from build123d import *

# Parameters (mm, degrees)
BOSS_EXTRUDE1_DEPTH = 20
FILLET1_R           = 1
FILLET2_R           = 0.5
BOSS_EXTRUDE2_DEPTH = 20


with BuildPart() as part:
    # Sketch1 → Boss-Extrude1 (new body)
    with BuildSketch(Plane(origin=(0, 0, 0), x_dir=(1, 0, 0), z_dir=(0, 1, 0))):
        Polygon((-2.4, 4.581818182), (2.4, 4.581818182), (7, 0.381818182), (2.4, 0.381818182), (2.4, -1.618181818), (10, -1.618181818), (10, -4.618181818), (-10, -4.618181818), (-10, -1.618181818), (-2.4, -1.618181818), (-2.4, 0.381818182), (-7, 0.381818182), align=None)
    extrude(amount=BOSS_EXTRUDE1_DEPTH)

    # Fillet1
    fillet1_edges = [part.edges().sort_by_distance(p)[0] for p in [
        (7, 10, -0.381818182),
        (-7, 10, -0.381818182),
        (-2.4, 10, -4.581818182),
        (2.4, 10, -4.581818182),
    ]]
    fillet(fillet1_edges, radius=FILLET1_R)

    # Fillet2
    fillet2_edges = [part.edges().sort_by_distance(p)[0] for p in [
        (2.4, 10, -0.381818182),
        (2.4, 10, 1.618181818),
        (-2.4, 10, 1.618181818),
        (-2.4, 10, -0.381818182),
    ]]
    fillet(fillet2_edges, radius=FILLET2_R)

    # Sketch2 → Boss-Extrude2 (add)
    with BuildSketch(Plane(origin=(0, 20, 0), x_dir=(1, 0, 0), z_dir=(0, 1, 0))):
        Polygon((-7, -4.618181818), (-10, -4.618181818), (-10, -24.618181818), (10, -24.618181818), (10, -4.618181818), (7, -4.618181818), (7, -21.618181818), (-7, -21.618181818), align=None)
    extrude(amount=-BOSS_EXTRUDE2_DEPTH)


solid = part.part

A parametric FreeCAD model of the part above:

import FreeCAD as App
import Part
import Sketcher
from FreeCAD import Vector
Q = App.Units.Quantity


def edges_at(feature, points):
    """Names of the edges that pass closest to the given points."""
    edges = feature.Shape.Edges
    near = lambda p: min(range(len(edges)), key=lambda i: edges[i].distToShape(Part.Vertex(*p))[0])
    return sorted({f"Edge{near(p) + 1}" for p in points})


def add_polygon(sketch, points):
    """Adds a closed chain of lines whose ends are joined by coincident constraints."""
    first, n = sketch.GeometryCount, len(points)
    for a, b in zip(points, points[1:] + points[:1]):
        sketch.addGeometry(Part.LineSegment(App.Vector(*a, 0), App.Vector(*b, 0)), False)
    for i in range(n):
        sketch.addConstraint(Sketcher.Constraint("Coincident", first + i, 2, first + (i + 1) % n, 1))

doc = App.newDocument("Part")
body = doc.addObject("PartDesign::Body", "Body")

sketch1 = body.newObject("Sketcher::SketchObject", "Sketch")
sketch1.AttachmentSupport = (doc.getObject("XZ_Plane"), [""])
sketch1.MapMode = "FlatFace"
add_polygon(sketch1, [(2.4, -4.581818), (-2.4, -4.581818), (-7, -0.381818), (-2.4, -0.381818), (-2.4, 1.618182), (-10, 1.618182), (-10, 4.618182), (10, 4.618182), (10, 1.618182), (2.4, 1.618182), (2.4, -0.381818), (7, -0.381818)])
sketch1.addConstraint(Sketcher.Constraint("Horizontal", 0))
sketch1.addConstraint(Sketcher.Constraint("Horizontal", 2))
sketch1.addConstraint(Sketcher.Constraint("Vertical", 3))
sketch1.addConstraint(Sketcher.Constraint("Horizontal", 4))
sketch1.addConstraint(Sketcher.Constraint("Vertical", 5))
sketch1.addConstraint(Sketcher.Constraint("Horizontal", 6))
sketch1.addConstraint(Sketcher.Constraint("Vertical", 7))
sketch1.addConstraint(Sketcher.Constraint("Horizontal", 8))
sketch1.addConstraint(Sketcher.Constraint("Vertical", 9))
sketch1.addConstraint(Sketcher.Constraint("Horizontal", 10))
sketch1.addConstraint(Sketcher.Constraint("Symmetric", 4, 2, 7, 2, -2))
sketch1.addConstraint(Sketcher.Constraint("Symmetric", 2, 2, 9, 2, -2))
sketch1.addConstraint(Sketcher.Constraint("Vertical", 0, 2, 2, 2))
sketch1.addConstraint(Sketcher.Constraint("Vertical", 9, 2, 11, 2))
sketch1.addConstraint(Sketcher.Constraint("Equal", 2, 10))
sketch1.addConstraint(Sketcher.Constraint("DistanceX", 6, 1, 6, 2, Q("20 mm")))
sketch1.addConstraint(Sketcher.Constraint("DistanceY", 3, 1, 3, 2, Q("2 mm")))
sketch1.addConstraint(Sketcher.Constraint("DistanceY", 5, 1, 5, 2, Q("3 mm")))
sketch1.addConstraint(Sketcher.Constraint("DistanceX", 0, 2, 0, 1, Q("4.8 mm")))
sketch1.addConstraint(Sketcher.Constraint("DistanceX", 2, 1, 2, 2, Q("4.6 mm")))
sketch1.addConstraint(Sketcher.Constraint("DistanceY", 0, 2, 1, 2, Q("4.2 mm")))
sketch1.addConstraint(Sketcher.Constraint("DistanceY", 0, 2, -1, 1, Q("4.581818 mm")))
pad1 = body.newObject("PartDesign::Pad", "Pad")
pad1.Profile = sketch1
pad1.Length = 20
pad1.Reversed = True
doc.recompute()

fillet = body.newObject("PartDesign::Fillet", "Fillet")
fillet.Base = (pad1, edges_at(pad1, [
    (7, 10, -0.382),
    (-7, 10, -0.382),
    (-2.4, 10, -4.582),
    (2.4, 10, -4.582),
]))
fillet.Radius = 1
doc.recompute()

fillet2 = body.newObject("PartDesign::Fillet", "Fillet001")
fillet2.Base = (fillet, edges_at(fillet, [
    (2.4, 10, -0.382),
    (2.4, 10, 1.618),
    (-2.4, 10, 1.618),
    (-2.4, 10, -0.382),
]))
fillet2.Radius = 0.5

sketch2 = body.newObject("Sketcher::SketchObject", "Sketch001")
sketch2.AttachmentSupport = (doc.getObject("XZ_Plane"), [""])
sketch2.MapMode = "FlatFace"
sketch2.AttachmentOffset = App.Placement(Vector(0, 0, -20), App.Rotation())
add_polygon(sketch2, [(-7, 4.618182), (-10, 4.618182), (-10, 24.618182), (10, 24.618182), (10, 4.618182), (7, 4.618182), (7, 21.618182), (-7, 21.618182)])
sketch2.addConstraint(Sketcher.Constraint("Horizontal", 0))
sketch2.addConstraint(Sketcher.Constraint("Vertical", 1))
sketch2.addConstraint(Sketcher.Constraint("Horizontal", 2))
sketch2.addConstraint(Sketcher.Constraint("Vertical", 3))
sketch2.addConstraint(Sketcher.Constraint("Horizontal", 4))
sketch2.addConstraint(Sketcher.Constraint("Vertical", 5))
sketch2.addConstraint(Sketcher.Constraint("Horizontal", 6))
sketch2.addConstraint(Sketcher.Constraint("Vertical", 7))
sketch2.addConstraint(Sketcher.Constraint("Symmetric", 0, 2, 3, 2, -2))
sketch2.addConstraint(Sketcher.Constraint("Equal", 0, 4))
sketch2.addConstraint(Sketcher.Constraint("Equal", 2, 1))
sketch2.addConstraint(Sketcher.Constraint("DistanceX", 0, 2, 0, 1, Q("3 mm")))
sketch2.addConstraint(Sketcher.Constraint("DistanceX", 2, 1, 2, 2, Q("20 mm")))
sketch2.addConstraint(Sketcher.Constraint("DistanceY", 5, 1, 5, 2, Q("17 mm")))
sketch2.addConstraint(Sketcher.Constraint("DistanceY", -1, 1, 0, 2, Q("4.618182 mm")))
pad2 = body.newObject("PartDesign::Pad", "Pad001")
pad2.Profile = sketch2
pad2.Length = 20

doc.recompute()
